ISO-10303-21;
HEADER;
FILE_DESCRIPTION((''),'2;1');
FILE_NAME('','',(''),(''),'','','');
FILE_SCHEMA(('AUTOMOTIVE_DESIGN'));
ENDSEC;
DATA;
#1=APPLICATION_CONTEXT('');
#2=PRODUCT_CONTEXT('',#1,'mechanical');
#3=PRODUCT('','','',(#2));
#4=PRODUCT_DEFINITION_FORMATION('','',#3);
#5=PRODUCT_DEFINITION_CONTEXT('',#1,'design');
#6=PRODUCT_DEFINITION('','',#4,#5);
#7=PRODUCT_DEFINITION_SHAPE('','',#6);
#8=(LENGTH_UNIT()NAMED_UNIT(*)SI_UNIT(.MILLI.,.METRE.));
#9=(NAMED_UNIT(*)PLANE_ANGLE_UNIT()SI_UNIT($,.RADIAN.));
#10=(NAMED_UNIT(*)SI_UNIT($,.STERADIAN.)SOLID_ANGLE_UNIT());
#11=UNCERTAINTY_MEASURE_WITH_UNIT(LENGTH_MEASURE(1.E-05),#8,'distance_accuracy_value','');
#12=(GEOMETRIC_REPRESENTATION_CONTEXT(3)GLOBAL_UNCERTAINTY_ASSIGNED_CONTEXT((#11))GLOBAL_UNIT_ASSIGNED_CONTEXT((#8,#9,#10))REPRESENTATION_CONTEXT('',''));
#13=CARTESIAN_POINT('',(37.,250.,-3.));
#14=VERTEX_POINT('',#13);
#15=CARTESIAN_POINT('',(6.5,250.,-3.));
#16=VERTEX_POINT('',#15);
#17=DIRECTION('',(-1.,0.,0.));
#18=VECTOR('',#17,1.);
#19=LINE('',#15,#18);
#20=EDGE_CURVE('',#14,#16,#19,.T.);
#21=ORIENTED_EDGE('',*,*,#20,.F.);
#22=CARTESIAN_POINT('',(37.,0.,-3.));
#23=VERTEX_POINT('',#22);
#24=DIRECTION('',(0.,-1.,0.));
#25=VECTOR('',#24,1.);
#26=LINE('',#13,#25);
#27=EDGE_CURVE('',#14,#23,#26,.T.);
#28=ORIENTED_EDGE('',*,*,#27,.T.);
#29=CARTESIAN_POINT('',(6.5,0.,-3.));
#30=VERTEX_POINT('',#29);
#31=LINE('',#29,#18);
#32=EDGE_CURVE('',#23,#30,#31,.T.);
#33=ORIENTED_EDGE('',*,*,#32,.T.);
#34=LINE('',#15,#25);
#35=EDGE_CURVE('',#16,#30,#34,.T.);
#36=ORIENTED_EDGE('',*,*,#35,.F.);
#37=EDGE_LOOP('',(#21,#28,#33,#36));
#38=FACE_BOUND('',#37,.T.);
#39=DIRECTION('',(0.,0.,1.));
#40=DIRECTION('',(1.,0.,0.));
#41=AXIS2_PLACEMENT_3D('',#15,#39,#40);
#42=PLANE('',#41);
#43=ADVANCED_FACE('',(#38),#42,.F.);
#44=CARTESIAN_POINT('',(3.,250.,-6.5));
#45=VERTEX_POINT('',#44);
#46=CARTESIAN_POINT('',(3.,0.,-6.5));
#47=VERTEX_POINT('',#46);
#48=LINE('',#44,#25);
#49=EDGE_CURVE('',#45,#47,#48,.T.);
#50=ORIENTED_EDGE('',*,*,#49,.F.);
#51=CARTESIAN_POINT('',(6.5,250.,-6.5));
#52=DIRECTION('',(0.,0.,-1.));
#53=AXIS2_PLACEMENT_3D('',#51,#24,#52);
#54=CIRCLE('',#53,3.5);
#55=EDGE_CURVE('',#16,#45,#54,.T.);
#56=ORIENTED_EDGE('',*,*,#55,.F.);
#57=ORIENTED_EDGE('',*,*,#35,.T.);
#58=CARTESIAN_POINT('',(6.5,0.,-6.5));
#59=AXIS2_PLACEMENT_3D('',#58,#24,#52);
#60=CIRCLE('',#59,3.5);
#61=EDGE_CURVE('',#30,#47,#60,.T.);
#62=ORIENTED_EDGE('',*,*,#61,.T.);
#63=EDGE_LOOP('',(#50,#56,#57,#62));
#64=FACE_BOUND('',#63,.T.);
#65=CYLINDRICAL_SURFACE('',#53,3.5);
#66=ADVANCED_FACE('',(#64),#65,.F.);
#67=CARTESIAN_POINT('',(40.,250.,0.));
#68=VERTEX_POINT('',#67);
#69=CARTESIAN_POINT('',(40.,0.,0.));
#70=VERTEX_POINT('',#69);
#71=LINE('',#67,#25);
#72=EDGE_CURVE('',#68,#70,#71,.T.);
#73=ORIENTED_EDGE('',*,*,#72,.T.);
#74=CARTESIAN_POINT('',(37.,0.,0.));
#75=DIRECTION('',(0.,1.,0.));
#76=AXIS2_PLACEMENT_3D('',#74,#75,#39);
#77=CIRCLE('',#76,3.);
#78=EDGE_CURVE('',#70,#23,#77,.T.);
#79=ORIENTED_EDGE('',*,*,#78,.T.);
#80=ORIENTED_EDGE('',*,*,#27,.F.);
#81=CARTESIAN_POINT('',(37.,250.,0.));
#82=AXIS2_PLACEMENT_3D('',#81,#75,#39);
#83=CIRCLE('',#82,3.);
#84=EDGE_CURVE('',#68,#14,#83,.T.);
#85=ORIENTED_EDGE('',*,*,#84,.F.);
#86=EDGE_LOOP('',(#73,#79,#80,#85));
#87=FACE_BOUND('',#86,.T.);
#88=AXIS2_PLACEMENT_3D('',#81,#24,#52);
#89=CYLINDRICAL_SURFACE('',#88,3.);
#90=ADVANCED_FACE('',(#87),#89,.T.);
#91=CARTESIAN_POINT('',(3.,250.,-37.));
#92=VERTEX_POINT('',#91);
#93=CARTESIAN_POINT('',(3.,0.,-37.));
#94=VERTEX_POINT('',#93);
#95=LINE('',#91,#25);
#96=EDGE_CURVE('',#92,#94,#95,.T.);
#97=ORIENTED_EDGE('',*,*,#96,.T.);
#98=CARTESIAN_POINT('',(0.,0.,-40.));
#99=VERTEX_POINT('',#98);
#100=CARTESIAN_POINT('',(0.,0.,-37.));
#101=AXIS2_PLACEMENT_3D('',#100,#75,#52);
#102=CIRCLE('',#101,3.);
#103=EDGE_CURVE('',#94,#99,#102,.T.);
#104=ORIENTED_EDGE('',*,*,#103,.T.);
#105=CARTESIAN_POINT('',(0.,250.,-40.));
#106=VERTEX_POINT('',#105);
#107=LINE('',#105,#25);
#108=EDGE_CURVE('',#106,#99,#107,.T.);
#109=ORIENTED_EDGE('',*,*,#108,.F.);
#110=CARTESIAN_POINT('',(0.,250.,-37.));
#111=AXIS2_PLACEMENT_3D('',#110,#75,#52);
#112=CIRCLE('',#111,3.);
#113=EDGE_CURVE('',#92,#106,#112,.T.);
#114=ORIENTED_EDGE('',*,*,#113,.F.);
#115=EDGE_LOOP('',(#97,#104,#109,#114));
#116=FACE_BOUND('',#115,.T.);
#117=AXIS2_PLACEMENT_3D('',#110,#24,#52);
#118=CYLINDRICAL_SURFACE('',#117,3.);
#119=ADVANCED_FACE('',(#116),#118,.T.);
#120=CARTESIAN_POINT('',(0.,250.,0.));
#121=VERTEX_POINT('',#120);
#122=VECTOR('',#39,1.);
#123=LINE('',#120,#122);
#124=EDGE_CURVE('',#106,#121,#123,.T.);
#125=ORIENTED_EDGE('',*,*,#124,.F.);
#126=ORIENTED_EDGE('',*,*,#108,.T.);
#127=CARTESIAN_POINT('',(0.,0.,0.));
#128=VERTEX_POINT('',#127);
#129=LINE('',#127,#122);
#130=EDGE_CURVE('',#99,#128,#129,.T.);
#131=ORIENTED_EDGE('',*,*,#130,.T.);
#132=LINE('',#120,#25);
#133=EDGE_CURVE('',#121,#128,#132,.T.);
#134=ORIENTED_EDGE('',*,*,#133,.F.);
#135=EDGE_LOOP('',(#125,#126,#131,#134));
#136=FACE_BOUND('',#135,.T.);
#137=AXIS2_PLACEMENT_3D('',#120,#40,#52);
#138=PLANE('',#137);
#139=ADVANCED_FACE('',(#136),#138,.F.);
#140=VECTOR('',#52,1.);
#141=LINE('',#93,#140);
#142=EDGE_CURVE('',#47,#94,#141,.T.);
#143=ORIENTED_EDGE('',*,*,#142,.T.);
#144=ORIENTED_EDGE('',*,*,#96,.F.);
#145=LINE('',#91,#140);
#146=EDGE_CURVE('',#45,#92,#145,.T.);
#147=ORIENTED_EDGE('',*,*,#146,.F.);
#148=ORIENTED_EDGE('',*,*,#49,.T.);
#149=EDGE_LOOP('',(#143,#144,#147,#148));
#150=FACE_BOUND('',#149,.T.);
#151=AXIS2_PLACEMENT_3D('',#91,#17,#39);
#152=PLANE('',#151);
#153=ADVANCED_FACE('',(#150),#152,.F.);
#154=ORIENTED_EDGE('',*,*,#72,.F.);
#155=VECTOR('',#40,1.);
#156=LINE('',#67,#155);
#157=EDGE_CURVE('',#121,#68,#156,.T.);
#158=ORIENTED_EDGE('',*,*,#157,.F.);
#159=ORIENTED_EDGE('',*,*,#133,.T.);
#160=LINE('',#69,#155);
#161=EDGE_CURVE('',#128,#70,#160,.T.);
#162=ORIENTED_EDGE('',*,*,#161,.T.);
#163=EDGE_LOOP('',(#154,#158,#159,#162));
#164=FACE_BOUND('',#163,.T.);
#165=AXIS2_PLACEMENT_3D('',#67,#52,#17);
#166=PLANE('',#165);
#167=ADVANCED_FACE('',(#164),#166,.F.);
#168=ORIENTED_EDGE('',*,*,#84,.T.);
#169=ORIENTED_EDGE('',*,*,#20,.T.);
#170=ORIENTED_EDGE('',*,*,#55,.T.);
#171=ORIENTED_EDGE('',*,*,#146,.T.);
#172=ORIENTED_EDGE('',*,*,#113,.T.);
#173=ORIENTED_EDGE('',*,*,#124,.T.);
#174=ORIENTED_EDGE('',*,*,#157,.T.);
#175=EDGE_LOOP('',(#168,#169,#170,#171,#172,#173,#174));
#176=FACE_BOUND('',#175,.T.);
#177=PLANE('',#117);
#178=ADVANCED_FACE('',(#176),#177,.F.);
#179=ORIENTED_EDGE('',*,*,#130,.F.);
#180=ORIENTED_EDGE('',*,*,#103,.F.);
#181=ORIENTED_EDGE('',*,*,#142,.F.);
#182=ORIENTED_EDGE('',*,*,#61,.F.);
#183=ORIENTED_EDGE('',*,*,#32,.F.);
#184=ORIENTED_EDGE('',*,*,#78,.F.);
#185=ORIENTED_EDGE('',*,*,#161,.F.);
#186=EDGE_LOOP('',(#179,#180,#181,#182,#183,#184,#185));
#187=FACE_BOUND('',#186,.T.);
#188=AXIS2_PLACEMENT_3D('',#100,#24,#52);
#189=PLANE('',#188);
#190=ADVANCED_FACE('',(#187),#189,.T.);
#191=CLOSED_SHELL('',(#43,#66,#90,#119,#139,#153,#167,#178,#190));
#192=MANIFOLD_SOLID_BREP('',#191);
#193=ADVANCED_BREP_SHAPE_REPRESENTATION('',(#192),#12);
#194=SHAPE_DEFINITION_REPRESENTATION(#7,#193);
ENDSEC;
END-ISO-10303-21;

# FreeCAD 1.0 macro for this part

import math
import FreeCAD as App
import Part
import Sketcher
from FreeCAD import Vector

doc = App.newDocument("Part")
body = doc.addObject("PartDesign::Body", "Body")

# Sketch on XZ plane
sketch1 = body.newObject("Sketcher::SketchObject", "Sketch")
sketch1.AttachmentSupport = (doc.getObject("XZ_Plane"), [""])
sketch1.MapMode = "FlatFace"
sketch1.addGeometry([
    Part.LineSegment(Vector(0, -40, 0), Vector(0, 0, 0)),  # 0
    Part.LineSegment(Vector(0, 0, 0), Vector(40, 0, 0)),  # 1
    Part.ArcOfCircle(Part.Circle(Vector(37, 0, 0), Vector(0, 0, 1), 3), math.radians(-90), math.radians(0)),  # 2
    Part.LineSegment(Vector(37, -3, 0), Vector(6.5, -3, 0)),  # 3
    Part.ArcOfCircle(Part.Circle(Vector(6.5, -6.5, 0), Vector(0, 0, 1), 3.5), math.radians(90), math.radians(180)),  # 4
    Part.LineSegment(Vector(3, -6.5, 0), Vector(3, -37, 0)),  # 5
    Part.ArcOfCircle(Part.Circle(Vector(0, -37, 0), Vector(0, 0, 1), 3), math.radians(-90), math.radians(0)),  # 6
], False)
sketch1.addConstraint([
    Sketcher.Constraint("Coincident", 0, 2, 1, 1),
    Sketcher.Constraint("Coincident", 1, 2, 2, 2),
    Sketcher.Constraint("Tangent", 2, 1, 3, 1),
    Sketcher.Constraint("Tangent", 3, 2, 4, 1),
    Sketcher.Constraint("Tangent", 4, 2, 5, 1),
    Sketcher.Constraint("Tangent", 5, 2, 6, 2),
    Sketcher.Constraint("Coincident", 6, 1, 0, 1),
    Sketcher.Constraint("Vertical", 0),
    Sketcher.Constraint("Horizontal", 1),
    Sketcher.Constraint("Horizontal", 3),
    Sketcher.Constraint("Vertical", 5),
    Sketcher.Constraint("Coincident", 0, 2, -1, 1),
    Sketcher.Constraint("Equal", 2, 6),
    Sketcher.Constraint("PointOnObject", 2, 3, -1),
    Sketcher.Constraint("PointOnObject", 6, 3, -2),
    Sketcher.Constraint("Equal", 1, 0),
    Sketcher.Constraint("Radius", 2, 3.0),
    Sketcher.Constraint("Radius", 4, 3.5),
    Sketcher.Constraint("DistanceX", 1, 1, 1, 2, 40.0),
])
pad1 = body.newObject("PartDesign::Pad", "Pad")
pad1.Profile = sketch1
pad1.Length = 250
pad1.Reversed = True

doc.recompute()
